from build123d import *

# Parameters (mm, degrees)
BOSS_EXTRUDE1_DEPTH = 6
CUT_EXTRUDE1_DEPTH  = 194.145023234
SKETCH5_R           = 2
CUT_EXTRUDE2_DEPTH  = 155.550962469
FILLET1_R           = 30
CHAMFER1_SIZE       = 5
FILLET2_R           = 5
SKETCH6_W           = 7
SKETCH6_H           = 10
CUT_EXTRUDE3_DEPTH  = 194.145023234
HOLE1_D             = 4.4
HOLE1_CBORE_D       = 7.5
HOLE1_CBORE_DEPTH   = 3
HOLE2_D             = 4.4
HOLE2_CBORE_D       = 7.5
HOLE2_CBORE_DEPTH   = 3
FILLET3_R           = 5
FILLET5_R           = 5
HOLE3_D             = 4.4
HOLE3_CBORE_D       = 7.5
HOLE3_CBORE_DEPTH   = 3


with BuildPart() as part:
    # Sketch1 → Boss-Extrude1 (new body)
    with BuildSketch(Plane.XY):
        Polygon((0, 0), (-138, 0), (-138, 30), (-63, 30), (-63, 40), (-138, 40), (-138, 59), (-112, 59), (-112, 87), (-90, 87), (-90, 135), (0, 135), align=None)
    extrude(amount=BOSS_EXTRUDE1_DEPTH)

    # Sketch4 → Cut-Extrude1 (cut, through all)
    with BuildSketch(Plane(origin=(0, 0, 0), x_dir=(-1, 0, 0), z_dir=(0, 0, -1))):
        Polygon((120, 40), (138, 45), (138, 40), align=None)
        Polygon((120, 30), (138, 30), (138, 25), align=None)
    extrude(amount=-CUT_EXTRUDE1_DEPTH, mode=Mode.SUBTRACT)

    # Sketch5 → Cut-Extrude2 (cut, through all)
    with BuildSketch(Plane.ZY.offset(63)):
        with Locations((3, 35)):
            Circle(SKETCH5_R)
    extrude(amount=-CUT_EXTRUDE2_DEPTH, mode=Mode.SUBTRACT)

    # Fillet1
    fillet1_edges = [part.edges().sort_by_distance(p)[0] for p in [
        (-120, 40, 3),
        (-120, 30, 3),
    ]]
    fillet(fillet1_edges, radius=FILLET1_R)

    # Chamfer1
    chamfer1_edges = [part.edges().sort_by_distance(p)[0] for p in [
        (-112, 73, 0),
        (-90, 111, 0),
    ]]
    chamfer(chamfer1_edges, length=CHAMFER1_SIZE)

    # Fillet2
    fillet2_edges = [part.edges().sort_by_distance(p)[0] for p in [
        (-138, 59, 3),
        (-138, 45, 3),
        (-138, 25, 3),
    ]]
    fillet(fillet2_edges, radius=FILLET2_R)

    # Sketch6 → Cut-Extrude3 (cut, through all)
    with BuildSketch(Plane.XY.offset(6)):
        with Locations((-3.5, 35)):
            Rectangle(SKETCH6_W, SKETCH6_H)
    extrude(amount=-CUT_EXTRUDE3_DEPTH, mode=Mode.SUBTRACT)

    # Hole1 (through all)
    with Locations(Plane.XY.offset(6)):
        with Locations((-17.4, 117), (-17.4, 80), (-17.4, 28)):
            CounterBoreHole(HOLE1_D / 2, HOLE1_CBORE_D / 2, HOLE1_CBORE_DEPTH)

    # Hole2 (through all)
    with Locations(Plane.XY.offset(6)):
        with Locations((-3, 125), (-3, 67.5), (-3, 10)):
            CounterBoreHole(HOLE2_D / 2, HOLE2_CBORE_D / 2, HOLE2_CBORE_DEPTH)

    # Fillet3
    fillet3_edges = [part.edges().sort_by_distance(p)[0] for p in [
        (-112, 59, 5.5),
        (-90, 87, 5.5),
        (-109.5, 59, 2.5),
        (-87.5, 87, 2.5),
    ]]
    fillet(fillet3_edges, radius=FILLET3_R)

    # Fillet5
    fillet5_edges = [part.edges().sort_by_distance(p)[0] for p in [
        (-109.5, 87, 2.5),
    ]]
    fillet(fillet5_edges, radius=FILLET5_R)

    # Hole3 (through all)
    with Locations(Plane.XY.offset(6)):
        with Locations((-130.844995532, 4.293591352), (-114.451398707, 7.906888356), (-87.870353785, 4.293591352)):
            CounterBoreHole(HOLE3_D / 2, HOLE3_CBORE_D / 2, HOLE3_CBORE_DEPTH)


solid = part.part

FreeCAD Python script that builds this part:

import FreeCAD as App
import Part
import Sketcher
Q = App.Units.Quantity


def edges_at(feature, points):
    """Names of the edges that pass closest to the given points."""
    edges = feature.Shape.Edges
    near = lambda p: min(range(len(edges)), key=lambda i: edges[i].distToShape(Part.Vertex(*p))[0])
    return sorted({f"Edge{near(p) + 1}" for p in points})


def add_polygon(sketch, points):
    """Adds a closed chain of lines whose ends are joined by coincident constraints."""
    first, n = sketch.GeometryCount, len(points)
    for a, b in zip(points, points[1:] + points[:1]):
        sketch.addGeometry(Part.LineSegment(App.Vector(*a, 0), App.Vector(*b, 0)), False)
    for i in range(n):
        sketch.addConstraint(Sketcher.Constraint("Coincident", first + i, 2, first + (i + 1) % n, 1))

doc = App.newDocument("Part")
body = doc.addObject("PartDesign::Body", "Body")

# Sketch on XY plane
sketch1 = body.newObject("Sketcher::SketchObject", "Sketch")
sketch1.AttachmentSupport = (doc.getObject("XY_Plane"), [""])
sketch1.MapMode = "FlatFace"
add_polygon(sketch1, [(-138, 0), (0, 0), (0, 135), (-90, 135), (-90, 87), (-112, 87), (-112, 59), (-138, 59), (-138, 40), (-63, 40), (-63, 30), (-138, 30)])  # lines 0-11
sketch1.addConstraint([
    Sketcher.Constraint("Horizontal", 0),
    Sketcher.Constraint("Vertical", 1),
    Sketcher.Constraint("Horizontal", 2),
    Sketcher.Constraint("Vertical", 3),
    Sketcher.Constraint("Horizontal", 4),
    Sketcher.Constraint("Vertical", 5),
    Sketcher.Constraint("Horizontal", 6),
    Sketcher.Constraint("Vertical", 7),
    Sketcher.Constraint("Horizontal", 8),
    Sketcher.Constraint("Vertical", 9),
    Sketcher.Constraint("Horizontal", 10),
    Sketcher.Constraint("Vertical", 11),
    Sketcher.Constraint("Coincident", 0, 2, -1, 1),
    Sketcher.Constraint("Vertical", 7, 2, 10, 2),
    Sketcher.Constraint("DistanceX", 0, 1, 0, 2, Q("138 mm")),
    Sketcher.Constraint("DistanceX", 2, 2, 2, 1, Q("90 mm")),
    Sketcher.Constraint("DistanceX", 4, 2, 4, 1, Q("22 mm")),
    Sketcher.Constraint("DistanceX", 8, 1, 8, 2, Q("75 mm")),
    Sketcher.Constraint("DistanceY", 1, 1, 1, 2, Q("135 mm")),
    Sketcher.Constraint("DistanceY", 3, 2, 3, 1, Q("48 mm")),
    Sketcher.Constraint("DistanceY", 5, 2, 5, 1, Q("28 mm")),
    Sketcher.Constraint("DistanceY", 7, 2, 7, 1, Q("19 mm")),
    Sketcher.Constraint("DistanceY", 9, 2, 9, 1, Q("10 mm")),
])
pad1 = body.newObject("PartDesign::Pad", "Pad")
pad1.Profile = sketch1
pad1.Length = 6

# Sketch on XY plane
sketch2 = body.newObject("Sketcher::SketchObject", "Sketch001")
sketch2.AttachmentSupport = (doc.getObject("XY_Plane"), [""])
sketch2.MapMode = "FlatFace"
add_polygon(sketch2, [(-138, 45), (-120, 40), (-138, 40)])  # lines 0-2
add_polygon(sketch2, [(-138, 30), (-120, 30), (-138, 25)])  # lines 3-5
sketch2.addConstraint([
    Sketcher.Constraint("Horizontal", 1),
    Sketcher.Constraint("Vertical", 2),
    Sketcher.Constraint("Horizontal", 3),
    Sketcher.Constraint("Vertical", 5),
    Sketcher.Constraint("Vertical", 0, 2, 3, 2),
    Sketcher.Constraint("Vertical", 2, 2, 4, 2),
    Sketcher.Constraint("Equal", 2, 5),
    Sketcher.Constraint("DistanceX", 1, 2, 1, 1, Q("18 mm")),
    Sketcher.Constraint("DistanceY", 2, 1, 2, 2, Q("5 mm")),
    Sketcher.Constraint("DistanceX", 0, 2, -1, 1, Q("120 mm")),
    Sketcher.Constraint("DistanceY", -1, 1, 0, 2, Q("40 mm")),
    Sketcher.Constraint("DistanceY", -1, 1, 3, 2, Q("30 mm")),
])
pocket1 = body.newObject("PartDesign::Pocket", "Pocket")
pocket1.Profile = sketch2
pocket1.Type = "ThroughAll"
pocket1.Reversed = True

# Sketch on YZ plane
sketch3 = body.newObject("Sketcher::SketchObject", "Sketch002")
sketch3.AttachmentSupport = (doc.getObject("YZ_Plane"), [""])
sketch3.MapMode = "FlatFace"
sketch3.AttachmentOffset = App.Placement(App.Vector(0, 0, -63), App.Rotation())
sketch3.addGeometry(Part.Circle(App.Vector(35, 3, 0), App.Vector(0, 0, 1), 2), False)
sketch3.addConstraint([
    Sketcher.Constraint("Diameter", 0, Q("4 mm")),
    Sketcher.Constraint("DistanceX", -1, 1, 0, 3, Q("35 mm")),
    Sketcher.Constraint("DistanceY", -1, 1, 0, 3, Q("3 mm")),
])
pocket2 = body.newObject("PartDesign::Pocket", "Pocket001")
pocket2.Profile = sketch3
pocket2.Type = "ThroughAll"
pocket2.Reversed = True
doc.recompute()

fillet = body.newObject("PartDesign::Fillet", "Fillet")
fillet.Base = (pocket2, edges_at(pocket2, [(-120, 40, 3), (-120, 30, 3)]))
fillet.Radius = 30
doc.recompute()

chamfer = body.newObject("PartDesign::Chamfer", "Chamfer")
chamfer.Base = (fillet, edges_at(fillet, [(-112, 73, 0), (-90, 111, 0)]))
chamfer.Size = 5
doc.recompute()

fillet2 = body.newObject("PartDesign::Fillet", "Fillet001")
fillet2.Base = (chamfer, edges_at(chamfer, [(-138, 59, 3), (-138, 45, 3), (-138, 25, 3)]))
fillet2.Radius = 5

# Sketch on XY plane
sketch4 = body.newObject("Sketcher::SketchObject", "Sketch003")
sketch4.AttachmentSupport = (doc.getObject("XY_Plane"), [""])
sketch4.MapMode = "FlatFace"
sketch4.AttachmentOffset = App.Placement(App.Vector(0, 0, 6), App.Rotation())
add_polygon(sketch4, [(-7, 40), (-7, 30), (0, 30), (0, 40)])  # lines 0-3
sketch4.addConstraint([
    Sketcher.Constraint("Vertical", 0),
    Sketcher.Constraint("Horizontal", 1),
    Sketcher.Constraint("Vertical", 2),
    Sketcher.Constraint("Horizontal", 3),
    Sketcher.Constraint("PointOnObject", 1, 2, -2),
    Sketcher.Constraint("DistanceX", 1, 1, 1, 2, Q("7 mm")),
    Sketcher.Constraint("DistanceY", 0, 2, 0, 1, Q("10 mm")),
    Sketcher.Constraint("DistanceY", -1, 1, 0, 2, Q("30 mm")),
])
pocket3 = body.newObject("PartDesign::Pocket", "Pocket002")
pocket3.Profile = sketch4
pocket3.Type = "ThroughAll"

# Sketch on XY plane
sketch5 = body.newObject("Sketcher::SketchObject", "Sketch004")
sketch5.AttachmentSupport = (doc.getObject("XY_Plane"), [""])
sketch5.MapMode = "FlatFace"
sketch5.AttachmentOffset = App.Placement(App.Vector(0, 0, 6), App.Rotation())
sketch5.addGeometry([
    Part.Circle(App.Vector(-17.4, 117, 0), App.Vector(0, 0, 1), 2.2),
    Part.Circle(App.Vector(-17.4, 80, 0), App.Vector(0, 0, 1), 2.2),
    Part.Circle(App.Vector(-17.4, 28, 0), App.Vector(0, 0, 1), 2.2),
], False)
sketch5.addConstraint([
    Sketcher.Constraint("Equal", 0, 1),
    Sketcher.Constraint("Equal", 1, 2),
    Sketcher.Constraint("Vertical", 0, 3, 1, 3),
    Sketcher.Constraint("Vertical", 1, 3, 2, 3),
    Sketcher.Constraint("Diameter", 0, Q("4.4 mm")),
    Sketcher.Constraint("DistanceY", -1, 1, 0, 3, Q("117 mm")),
    Sketcher.Constraint("DistanceY", -1, 1, 1, 3, Q("80 mm")),
    Sketcher.Constraint("DistanceY", -1, 1, 2, 3, Q("28 mm")),
    Sketcher.Constraint("DistanceX", 0, 3, -1, 1, Q("17.4 mm")),
])
doc.recompute()
hole = body.newObject("PartDesign::Hole", "Hole")
hole.Profile = sketch5
hole.ThreadType = "None"
hole.Diameter = 4.4
hole.DepthType = "ThroughAll"
hole.HoleCutType = "Counterbore"
hole.HoleCutDiameter = 7.5
hole.HoleCutDepth = 3

# Sketch on XY plane
sketch6 = body.newObject("Sketcher::SketchObject", "Sketch005")
sketch6.AttachmentSupport = (doc.getObject("XY_Plane"), [""])
sketch6.MapMode = "FlatFace"
sketch6.AttachmentOffset = App.Placement(App.Vector(0, 0, 6), App.Rotation())
sketch6.addGeometry([
    Part.Circle(App.Vector(-3, 125, 0), App.Vector(0, 0, 1), 2.2),
    Part.Circle(App.Vector(-3, 67.5, 0), App.Vector(0, 0, 1), 2.2),
    Part.Circle(App.Vector(-3, 10, 0), App.Vector(0, 0, 1), 2.2),
], False)
sketch6.addConstraint([
    Sketcher.Constraint("Equal", 0, 1),
    Sketcher.Constraint("Equal", 1, 2),
    Sketcher.Constraint("Vertical", 0, 3, 1, 3),
    Sketcher.Constraint("Vertical", 1, 3, 2, 3),
    Sketcher.Constraint("Diameter", 0, Q("4.4 mm")),
    Sketcher.Constraint("DistanceX", 0, 3, -1, 1, Q("3 mm")),
    Sketcher.Constraint("DistanceY", -1, 1, 0, 3, Q("125 mm")),
    Sketcher.Constraint("DistanceY", -1, 1, 2, 3, Q("10 mm")),
    Sketcher.Constraint("DistanceY", -1, 1, 1, 3, Q("67.5 mm")),
])
doc.recompute()
hole2 = body.newObject("PartDesign::Hole", "Hole001")
hole2.Profile = sketch6
hole2.ThreadType = "None"
hole2.Diameter = 4.4
hole2.DepthType = "ThroughAll"
hole2.HoleCutType = "Counterbore"
hole2.HoleCutDiameter = 7.5
hole2.HoleCutDepth = 3
doc.recompute()

fillet3 = body.newObject("PartDesign::Fillet", "Fillet002")
fillet3.Base = (hole2, edges_at(hole2, [
    (-112, 59, 5.5),
    (-90, 87, 5.5),
    (-109.5, 59, 2.5),
    (-87.5, 87, 2.5),
]))
fillet3.Radius = 5
doc.recompute()

fillet4 = body.newObject("PartDesign::Fillet", "Fillet003")
fillet4.Base = (fillet3, edges_at(fillet3, [(-109.5, 87, 2.5)]))
fillet4.Radius = 5

# Sketch on XY plane
sketch7 = body.newObject("Sketcher::SketchObject", "Sketch006")
sketch7.AttachmentSupport = (doc.getObject("XY_Plane"), [""])
sketch7.MapMode = "FlatFace"
sketch7.AttachmentOffset = App.Placement(App.Vector(0, 0, 6), App.Rotation())
sketch7.addGeometry([
    Part.Circle(App.Vector(-130.8, 4.3, 0), App.Vector(0, 0, 1), 2.2),
    Part.Circle(App.Vector(-114.5, 7.9, 0), App.Vector(0, 0, 1), 2.2),
    Part.Circle(App.Vector(-87.9, 4.3, 0), App.Vector(0, 0, 1), 2.2),
], False)
sketch7.addConstraint([
    Sketcher.Constraint("Equal", 0, 1),
    Sketcher.Constraint("Equal", 1, 2),
    Sketcher.Constraint("Horizontal", 0, 3, 2, 3),
    Sketcher.Constraint("Diameter", 0, Q("4.4 mm")),
    Sketcher.Constraint("DistanceX", 1, 3, -1, 1, Q("114.451399 mm")),
    Sketcher.Constraint("DistanceY", -1, 1, 0, 3, Q("4.293591 mm")),
    Sketcher.Constraint("DistanceY", -1, 1, 1, 3, Q("7.906888 mm")),
    Sketcher.Constraint("DistanceX", 0, 3, 2, 3, Q("42.974642 mm")),
    Sketcher.Constraint("DistanceX", 0, 3, -1, 1, Q("130.844996 mm")),
])
doc.recompute()
hole3 = body.newObject("PartDesign::Hole", "Hole002")
hole3.Profile = sketch7
hole3.ThreadType = "None"
hole3.Diameter = 4.4
hole3.DepthType = "ThroughAll"
hole3.HoleCutType = "Counterbore"
hole3.HoleCutDiameter = 7.5
hole3.HoleCutDepth = 3

doc.recompute()
